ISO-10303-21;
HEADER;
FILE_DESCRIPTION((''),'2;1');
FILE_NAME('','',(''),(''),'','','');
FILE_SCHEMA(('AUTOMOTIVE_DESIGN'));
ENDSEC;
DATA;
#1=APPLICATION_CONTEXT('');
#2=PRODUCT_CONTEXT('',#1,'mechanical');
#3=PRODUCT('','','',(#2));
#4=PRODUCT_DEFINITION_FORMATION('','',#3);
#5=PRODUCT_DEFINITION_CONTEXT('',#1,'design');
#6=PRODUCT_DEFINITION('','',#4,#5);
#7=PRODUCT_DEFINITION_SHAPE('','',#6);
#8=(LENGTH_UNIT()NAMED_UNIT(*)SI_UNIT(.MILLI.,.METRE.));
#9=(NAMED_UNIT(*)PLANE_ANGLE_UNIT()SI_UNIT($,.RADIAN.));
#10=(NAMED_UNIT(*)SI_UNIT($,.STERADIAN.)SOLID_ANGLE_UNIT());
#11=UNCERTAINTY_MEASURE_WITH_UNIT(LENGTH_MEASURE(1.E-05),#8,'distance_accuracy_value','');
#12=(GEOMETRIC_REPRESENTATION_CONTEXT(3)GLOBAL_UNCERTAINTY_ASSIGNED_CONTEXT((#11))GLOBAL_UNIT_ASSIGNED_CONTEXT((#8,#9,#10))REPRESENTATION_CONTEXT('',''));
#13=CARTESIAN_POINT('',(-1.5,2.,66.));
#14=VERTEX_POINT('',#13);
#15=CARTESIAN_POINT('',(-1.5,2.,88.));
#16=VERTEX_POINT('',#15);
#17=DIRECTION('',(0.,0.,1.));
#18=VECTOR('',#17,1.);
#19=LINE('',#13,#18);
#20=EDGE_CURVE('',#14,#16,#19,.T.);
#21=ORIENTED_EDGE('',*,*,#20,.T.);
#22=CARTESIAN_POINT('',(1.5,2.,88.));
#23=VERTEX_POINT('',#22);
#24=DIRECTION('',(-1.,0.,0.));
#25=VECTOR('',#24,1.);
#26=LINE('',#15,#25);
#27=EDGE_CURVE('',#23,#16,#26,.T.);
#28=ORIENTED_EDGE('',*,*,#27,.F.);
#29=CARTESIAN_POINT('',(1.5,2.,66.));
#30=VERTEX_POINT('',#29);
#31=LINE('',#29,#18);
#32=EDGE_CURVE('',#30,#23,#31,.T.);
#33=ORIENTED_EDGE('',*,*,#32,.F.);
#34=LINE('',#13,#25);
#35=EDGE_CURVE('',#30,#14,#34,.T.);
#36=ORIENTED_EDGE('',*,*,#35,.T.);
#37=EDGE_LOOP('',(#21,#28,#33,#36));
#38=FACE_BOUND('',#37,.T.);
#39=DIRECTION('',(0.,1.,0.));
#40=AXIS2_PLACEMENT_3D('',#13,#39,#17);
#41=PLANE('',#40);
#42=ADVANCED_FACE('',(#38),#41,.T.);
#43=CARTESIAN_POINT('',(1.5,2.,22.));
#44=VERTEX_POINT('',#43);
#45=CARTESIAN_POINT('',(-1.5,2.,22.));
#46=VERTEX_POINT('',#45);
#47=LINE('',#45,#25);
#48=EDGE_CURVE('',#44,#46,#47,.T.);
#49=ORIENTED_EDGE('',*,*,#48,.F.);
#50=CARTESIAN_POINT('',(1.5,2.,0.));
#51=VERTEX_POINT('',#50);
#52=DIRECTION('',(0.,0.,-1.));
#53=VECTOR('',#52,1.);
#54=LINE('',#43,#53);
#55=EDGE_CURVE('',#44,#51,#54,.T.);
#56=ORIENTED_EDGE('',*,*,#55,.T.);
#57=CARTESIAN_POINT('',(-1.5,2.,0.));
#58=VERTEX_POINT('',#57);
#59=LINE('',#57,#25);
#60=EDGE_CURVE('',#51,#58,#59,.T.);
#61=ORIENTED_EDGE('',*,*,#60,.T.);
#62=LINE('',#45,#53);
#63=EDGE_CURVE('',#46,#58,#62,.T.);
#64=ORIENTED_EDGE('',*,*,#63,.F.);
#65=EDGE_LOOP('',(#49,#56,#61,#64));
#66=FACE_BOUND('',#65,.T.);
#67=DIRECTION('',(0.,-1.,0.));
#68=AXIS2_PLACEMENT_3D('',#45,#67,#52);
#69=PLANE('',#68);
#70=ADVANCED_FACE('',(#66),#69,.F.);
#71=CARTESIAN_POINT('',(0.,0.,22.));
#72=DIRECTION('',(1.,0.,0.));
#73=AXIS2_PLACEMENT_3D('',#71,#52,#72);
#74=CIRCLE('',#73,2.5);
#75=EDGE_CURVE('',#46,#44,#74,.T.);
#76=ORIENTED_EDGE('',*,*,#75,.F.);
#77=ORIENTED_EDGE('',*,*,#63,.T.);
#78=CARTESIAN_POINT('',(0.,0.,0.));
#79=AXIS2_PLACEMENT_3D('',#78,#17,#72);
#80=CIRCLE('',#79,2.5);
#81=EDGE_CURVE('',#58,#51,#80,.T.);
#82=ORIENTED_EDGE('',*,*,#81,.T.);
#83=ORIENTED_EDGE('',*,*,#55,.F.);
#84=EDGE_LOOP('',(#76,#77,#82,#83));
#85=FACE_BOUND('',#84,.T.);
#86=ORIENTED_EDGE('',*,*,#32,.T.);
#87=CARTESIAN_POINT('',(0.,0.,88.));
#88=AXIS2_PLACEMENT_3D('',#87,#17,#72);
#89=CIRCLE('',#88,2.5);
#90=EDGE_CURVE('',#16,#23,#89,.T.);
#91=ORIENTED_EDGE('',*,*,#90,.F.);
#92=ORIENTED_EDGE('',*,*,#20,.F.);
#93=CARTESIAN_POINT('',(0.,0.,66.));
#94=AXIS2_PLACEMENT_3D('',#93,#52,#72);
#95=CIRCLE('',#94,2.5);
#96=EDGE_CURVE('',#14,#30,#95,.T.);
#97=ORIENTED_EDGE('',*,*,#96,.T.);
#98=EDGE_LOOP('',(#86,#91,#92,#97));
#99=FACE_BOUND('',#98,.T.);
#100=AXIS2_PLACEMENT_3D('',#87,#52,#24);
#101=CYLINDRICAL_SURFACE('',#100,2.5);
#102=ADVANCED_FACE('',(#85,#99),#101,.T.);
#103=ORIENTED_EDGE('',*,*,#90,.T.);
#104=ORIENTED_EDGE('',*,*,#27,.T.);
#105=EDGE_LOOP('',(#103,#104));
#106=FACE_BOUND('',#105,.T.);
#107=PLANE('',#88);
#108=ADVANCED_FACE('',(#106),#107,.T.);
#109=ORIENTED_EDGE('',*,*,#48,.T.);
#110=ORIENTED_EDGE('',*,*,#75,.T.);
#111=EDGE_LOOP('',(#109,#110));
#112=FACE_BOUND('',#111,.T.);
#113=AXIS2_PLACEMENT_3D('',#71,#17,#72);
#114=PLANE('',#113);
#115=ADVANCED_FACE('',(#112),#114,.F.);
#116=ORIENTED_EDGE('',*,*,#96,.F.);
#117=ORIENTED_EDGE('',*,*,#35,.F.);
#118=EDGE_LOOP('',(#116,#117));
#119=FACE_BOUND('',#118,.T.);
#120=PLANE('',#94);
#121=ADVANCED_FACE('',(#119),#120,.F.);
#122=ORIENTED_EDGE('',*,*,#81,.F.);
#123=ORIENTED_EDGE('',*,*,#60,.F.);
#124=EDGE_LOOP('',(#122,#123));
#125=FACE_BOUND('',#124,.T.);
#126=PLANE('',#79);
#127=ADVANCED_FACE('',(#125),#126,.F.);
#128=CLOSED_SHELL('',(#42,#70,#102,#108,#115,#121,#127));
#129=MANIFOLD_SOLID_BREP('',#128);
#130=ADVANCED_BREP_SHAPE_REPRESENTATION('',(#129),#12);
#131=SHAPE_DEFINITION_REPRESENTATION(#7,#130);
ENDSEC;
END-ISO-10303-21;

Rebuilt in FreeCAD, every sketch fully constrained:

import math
import FreeCAD as App
import Part
import Sketcher

doc = App.newDocument("Part")
body = doc.addObject("PartDesign::Body", "Body")

sketch1 = body.newObject("Sketcher::SketchObject", "Sketch")
sketch1.AttachmentSupport = (doc.getObject("XY_Plane"), [""])
sketch1.MapMode = "FlatFace"
sketch1.addGeometry(Part.Circle(App.Vector(0, 0, 0), App.Vector(0, 0, 1), 2.5), False)
sketch1.addConstraint([
    Sketcher.Constraint("Coincident", 0, 3, -1, 1),
    Sketcher.Constraint("Diameter", 0, 5.0),
])
pad1 = body.newObject("PartDesign::Pad", "Pad")
pad1.Profile = sketch1
pad1.Length = 88

sketch2 = body.newObject("Sketcher::SketchObject", "Sketch001")
sketch2.AttachmentSupport = (doc.getObject("XY_Plane"), [""])
sketch2.MapMode = "FlatFace"
sketch2.addGeometry([
    Part.LineSegment(App.Vector(1.5, 2, 0), App.Vector(-1.5, 2, 0)),
    Part.ArcOfCircle(Part.Circle(App.Vector(0, 0, 0), App.Vector(0, 0, 1), 2.5), math.radians(53), math.radians(127)),
], False)
sketch2.addConstraint([
    Sketcher.Constraint("Coincident", 0, 1, 1, 1),
    Sketcher.Constraint("Coincident", 1, 2, 0, 2),
    Sketcher.Constraint("Horizontal", 0),
    Sketcher.Constraint("Coincident", 1, 3, -1, 1),
    Sketcher.Constraint("Radius", 1, 2.5),
    Sketcher.Constraint("DistanceX", 0, 2, 0, 1, 3.0),
])
pocket1 = body.newObject("PartDesign::Pocket", "Pocket")
pocket1.Profile = sketch2
pocket1.Length = 22
pocket1.Reversed = True
doc.recompute()

datumplane = body.newObject("PartDesign::Plane", "DatumPlane")
datumplane.AttachmentSupport = (doc.getObject("XY_Plane"), [""])
datumplane.MapMode = "FlatFace"
datumplane.AttachmentOffset = App.Placement(App.Vector(0, 0, 44), App.Rotation())
mirrored = body.newObject("PartDesign::Mirrored", "Mirrored")
mirrored.Originals = [pocket1]
mirrored.MirrorPlane = (datumplane, [""])
body.Tip = mirrored

doc.recompute()
